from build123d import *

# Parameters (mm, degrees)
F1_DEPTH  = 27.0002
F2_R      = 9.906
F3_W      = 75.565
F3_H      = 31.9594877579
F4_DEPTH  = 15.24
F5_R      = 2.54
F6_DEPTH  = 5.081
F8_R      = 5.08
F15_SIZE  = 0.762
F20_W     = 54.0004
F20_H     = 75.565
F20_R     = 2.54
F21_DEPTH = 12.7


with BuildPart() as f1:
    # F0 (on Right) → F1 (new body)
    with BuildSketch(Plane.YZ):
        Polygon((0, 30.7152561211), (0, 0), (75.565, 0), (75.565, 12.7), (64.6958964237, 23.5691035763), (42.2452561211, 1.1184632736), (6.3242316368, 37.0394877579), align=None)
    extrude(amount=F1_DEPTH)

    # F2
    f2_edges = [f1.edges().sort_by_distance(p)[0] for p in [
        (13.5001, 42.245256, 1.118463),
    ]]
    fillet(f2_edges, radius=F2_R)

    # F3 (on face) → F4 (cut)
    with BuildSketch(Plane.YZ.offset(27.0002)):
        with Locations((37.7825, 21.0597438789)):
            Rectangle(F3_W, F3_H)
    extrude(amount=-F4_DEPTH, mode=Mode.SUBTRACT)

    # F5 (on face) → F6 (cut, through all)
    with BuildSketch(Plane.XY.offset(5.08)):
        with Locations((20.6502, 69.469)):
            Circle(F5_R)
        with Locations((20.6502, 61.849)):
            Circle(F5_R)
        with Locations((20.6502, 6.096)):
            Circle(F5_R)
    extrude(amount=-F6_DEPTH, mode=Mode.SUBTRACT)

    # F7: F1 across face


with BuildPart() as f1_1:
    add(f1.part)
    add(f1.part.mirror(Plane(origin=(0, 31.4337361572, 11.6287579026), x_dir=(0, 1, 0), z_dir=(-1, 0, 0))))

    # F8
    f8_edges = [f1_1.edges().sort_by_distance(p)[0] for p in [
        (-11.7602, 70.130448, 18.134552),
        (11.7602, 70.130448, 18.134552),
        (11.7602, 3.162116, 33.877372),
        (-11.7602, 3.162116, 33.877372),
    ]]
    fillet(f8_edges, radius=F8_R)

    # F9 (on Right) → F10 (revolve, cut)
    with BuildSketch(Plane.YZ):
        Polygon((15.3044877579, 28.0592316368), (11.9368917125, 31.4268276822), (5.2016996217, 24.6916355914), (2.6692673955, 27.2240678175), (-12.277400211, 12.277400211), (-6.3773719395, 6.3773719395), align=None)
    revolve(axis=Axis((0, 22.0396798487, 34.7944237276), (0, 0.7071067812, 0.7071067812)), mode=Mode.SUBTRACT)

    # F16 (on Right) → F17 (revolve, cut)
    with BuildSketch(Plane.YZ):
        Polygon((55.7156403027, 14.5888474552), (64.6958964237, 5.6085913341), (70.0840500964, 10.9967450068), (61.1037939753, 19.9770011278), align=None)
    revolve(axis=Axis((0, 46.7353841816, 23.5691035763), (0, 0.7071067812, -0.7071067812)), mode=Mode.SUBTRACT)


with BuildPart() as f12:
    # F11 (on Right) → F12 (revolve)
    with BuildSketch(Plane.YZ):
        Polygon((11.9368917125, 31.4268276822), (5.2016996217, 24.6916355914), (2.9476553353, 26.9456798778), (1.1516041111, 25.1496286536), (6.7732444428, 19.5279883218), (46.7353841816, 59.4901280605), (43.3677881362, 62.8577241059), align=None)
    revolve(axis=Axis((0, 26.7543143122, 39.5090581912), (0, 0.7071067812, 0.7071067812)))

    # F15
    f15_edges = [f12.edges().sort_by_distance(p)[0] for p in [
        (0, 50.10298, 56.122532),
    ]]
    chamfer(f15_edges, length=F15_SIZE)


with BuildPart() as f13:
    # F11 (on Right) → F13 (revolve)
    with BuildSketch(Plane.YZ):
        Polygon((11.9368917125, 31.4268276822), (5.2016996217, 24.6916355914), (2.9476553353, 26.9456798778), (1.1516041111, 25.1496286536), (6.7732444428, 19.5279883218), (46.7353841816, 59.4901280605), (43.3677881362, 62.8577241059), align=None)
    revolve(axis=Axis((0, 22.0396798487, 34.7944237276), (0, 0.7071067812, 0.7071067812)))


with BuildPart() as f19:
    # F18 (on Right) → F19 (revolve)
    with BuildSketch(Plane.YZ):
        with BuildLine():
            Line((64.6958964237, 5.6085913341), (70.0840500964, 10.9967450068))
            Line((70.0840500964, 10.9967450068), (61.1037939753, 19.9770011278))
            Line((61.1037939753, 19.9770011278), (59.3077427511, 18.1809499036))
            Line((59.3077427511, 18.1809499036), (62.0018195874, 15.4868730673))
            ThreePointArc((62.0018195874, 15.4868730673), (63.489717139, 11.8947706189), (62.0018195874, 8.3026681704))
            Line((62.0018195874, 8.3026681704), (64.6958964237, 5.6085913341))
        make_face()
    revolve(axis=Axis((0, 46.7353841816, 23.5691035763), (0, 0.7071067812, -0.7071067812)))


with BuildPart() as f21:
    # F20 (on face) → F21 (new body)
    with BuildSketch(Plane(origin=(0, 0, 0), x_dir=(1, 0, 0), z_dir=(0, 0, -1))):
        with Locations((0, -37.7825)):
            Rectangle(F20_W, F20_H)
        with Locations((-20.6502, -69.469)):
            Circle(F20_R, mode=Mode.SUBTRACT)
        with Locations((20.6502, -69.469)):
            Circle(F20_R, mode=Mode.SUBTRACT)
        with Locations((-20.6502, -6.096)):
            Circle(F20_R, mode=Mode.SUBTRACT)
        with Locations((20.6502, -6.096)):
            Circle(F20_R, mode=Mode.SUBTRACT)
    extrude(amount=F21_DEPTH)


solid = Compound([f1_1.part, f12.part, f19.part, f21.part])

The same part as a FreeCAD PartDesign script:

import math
import FreeCAD as App
import Part
import Sketcher
from FreeCAD import Vector
Q = App.Units.Quantity


def edges_at(feature, points):
    """Names of the edges that pass closest to the given points."""
    edges = feature.Shape.Edges
    near = lambda p: min(range(len(edges)), key=lambda i: edges[i].distToShape(Part.Vertex(*p))[0])
    return sorted({f"Edge{near(p) + 1}" for p in points})

doc = App.newDocument("Part")
body = doc.addObject("PartDesign::Body", "Body")

# Sketch on YZ plane
sketch1 = doc.addObject("Sketcher::SketchObject", "Sketch")
body.addObject(sketch1)
sketch1.AttachmentSupport = (doc.YZ_Plane, [""])
sketch1.MapMode = "FlatFace"
sketch1.addGeometry([
    Part.LineSegment(Vector(0, 31, 0), Vector(0, 0, 0)),  # 0
    Part.LineSegment(Vector(0, 0, 0), Vector(76, 0, 0)),  # 1
    Part.LineSegment(Vector(76, 0, 0), Vector(76, 13, 0)),  # 2
    Part.LineSegment(Vector(76, 13, 0), Vector(65, 24, 0)),  # 3
    Part.LineSegment(Vector(65, 24, 0), Vector(42, 1, 0)),  # 4
    Part.LineSegment(Vector(42, 1, 0), Vector(6, 37, 0)),  # 5
    Part.LineSegment(Vector(6, 37, 0), Vector(0, 31, 0)),  # 6
], False)
sketch1.addConstraint([
    Sketcher.Constraint("Coincident", 0, 2, 1, 1),
    Sketcher.Constraint("Coincident", 1, 2, 2, 1),
    Sketcher.Constraint("Coincident", 2, 2, 3, 1),
    Sketcher.Constraint("Coincident", 3, 2, 4, 1),
    Sketcher.Constraint("Coincident", 4, 2, 5, 1),
    Sketcher.Constraint("Coincident", 5, 2, 6, 1),
    Sketcher.Constraint("Coincident", 6, 2, 0, 1),
    Sketcher.Constraint("Vertical", 0),
    Sketcher.Constraint("Horizontal", 1),
    Sketcher.Constraint("Vertical", 2),
    Sketcher.Constraint("Coincident", 0, 2, -1, 1),
    Sketcher.Constraint("Perpendicular", 3, 4),
    Sketcher.Constraint("Perpendicular", 4, 5),
    Sketcher.Constraint("Perpendicular", 5, 6),
    Sketcher.Constraint("Distance", 5, Q("2 in")),
    Sketcher.Constraint("DistanceY", 2, 1, 2, 2, Q("0.5 in")),
    Sketcher.Constraint("Angle", 3, Q("135 deg")),
    Sketcher.Constraint("Distance", 4, Q("1.25 in")),
    Sketcher.Constraint("DistanceX", 1, 1, 1, 2, Q("2.975 in")),
    Sketcher.Constraint("DistanceY", 0, 2, 0, 1, 30.715256),
])
pad1 = doc.addObject("PartDesign::Pad", "Pad")
body.addObject(pad1)
pad1.Profile = sketch1
pad1.Length = Q("1.063 in")
doc.recompute()

fillet = doc.addObject("PartDesign::Fillet", "Fillet")
body.addObject(fillet)
fillet.Base = (pad1, edges_at(pad1, [(13.5, 42.245, 1.118)]))
fillet.Radius = Q("0.39 in")

# Sketch on YZ plane
sketch2 = doc.addObject("Sketcher::SketchObject", "Sketch001")
body.addObject(sketch2)
sketch2.AttachmentSupport = (doc.YZ_Plane, [""])
sketch2.MapMode = "FlatFace"
sketch2.AttachmentOffset = App.Placement(Vector(0, 0, 1.063 * 25.4), App.Rotation())
sketch2.addGeometry([
    Part.LineSegment(Vector(0, 37, 0), Vector(0, 5, 0)),
    Part.LineSegment(Vector(0, 5, 0), Vector(76, 5, 0)),
    Part.LineSegment(Vector(76, 5, 0), Vector(76, 37, 0)),
    Part.LineSegment(Vector(76, 37, 0), Vector(0, 37, 0)),
], False)
sketch2.addConstraint([
    Sketcher.Constraint("Coincident", 0, 2, 1, 1),
    Sketcher.Constraint("Coincident", 1, 2, 2, 1),
    Sketcher.Constraint("Coincident", 2, 2, 3, 1),
    Sketcher.Constraint("Coincident", 3, 2, 0, 1),
    Sketcher.Constraint("Vertical", 0),
    Sketcher.Constraint("Horizontal", 1),
    Sketcher.Constraint("Vertical", 2),
    Sketcher.Constraint("Horizontal", 3),
    Sketcher.Constraint("PointOnObject", 0, 2, -2),
    Sketcher.Constraint("DistanceY", -1, 1, 0, 2, Q("0.2 in")),
    Sketcher.Constraint("DistanceX", 1, 1, 1, 2, Q("2.975 in")),
    Sketcher.Constraint("DistanceY", 0, 2, 0, 1, 31.959488),
])
pocket1 = doc.addObject("PartDesign::Pocket", "Pocket")
body.addObject(pocket1)
pocket1.Profile = sketch2
pocket1.Length = Q("0.6 in")

# Sketch on XY plane
sketch3 = doc.addObject("Sketcher::SketchObject", "Sketch002")
body.addObject(sketch3)
sketch3.AttachmentSupport = (doc.XY_Plane, [""])
sketch3.MapMode = "FlatFace"
sketch3.AttachmentOffset = App.Placement(Vector(0, 0, 0.2 * 25.4), App.Rotation())
sketch3.addGeometry([
    Part.Circle(Vector(20.7, 69.5, 0), Vector(0, 0, 1), 2.5),
    Part.Circle(Vector(20.7, 61.8, 0), Vector(0, 0, 1), 2.5),
    Part.Circle(Vector(20.7, 6.1, 0), Vector(0, 0, 1), 2.5),
], False)
sketch3.addConstraint([
    Sketcher.Constraint("Equal", 0, 1),
    Sketcher.Constraint("Equal", 1, 2),
    Sketcher.Constraint("Vertical", 0, 3, 1, 3),
    Sketcher.Constraint("Vertical", 1, 3, 2, 3),
    Sketcher.Constraint("Diameter", 0, Q("0.2 in")),
    Sketcher.Constraint("DistanceY", 1, 3, 0, 3, Q("0.3 in")),
    Sketcher.Constraint("DistanceY", -1, 1, 2, 3, Q("0.24 in")),
    Sketcher.Constraint("DistanceX", -1, 1, 0, 3, Q("0.813 in")),
    Sketcher.Constraint("DistanceY", -1, 1, 0, 3, Q("2.735 in")),
])
pocket2 = doc.addObject("PartDesign::Pocket", "Pocket001")
body.addObject(pocket2)
pocket2.Profile = sketch3
pocket2.Type = "ThroughAll"
body2 = doc.addObject("PartDesign::Body", "Body001")
doc.recompute()

body2.BaseFeature = body
doc.recompute()

mirroring = doc.addObject("Part::Mirroring", "Mirroring")
mirroring.Source = body
mirroring.Base = Vector(0, 31.433736, 11.628758)
mirroring.Normal = Vector(-1, 0, 0)
body3 = doc.addObject("PartDesign::Body", "Body002")
body3.BaseFeature = mirroring
boolean = doc.addObject("PartDesign::Boolean", "Boolean")
body2.addObject(boolean)
boolean.Type = "Fuse"
boolean.addObjects([body3])
doc.recompute()

fillet2 = doc.addObject("PartDesign::Fillet", "Fillet001")
body2.addObject(fillet2)
fillet2.Base = (boolean, edges_at(boolean, [
    (-11.76, 70.13, 18.135),
    (11.76, 70.13, 18.135),
    (11.76, 3.162, 33.877),
    (-11.76, 3.162, 33.877),
]))
fillet2.Radius = Q("0.2 in")

# Sketch on YZ plane
sketch4 = doc.addObject("Sketcher::SketchObject", "Sketch003")
body2.addObject(sketch4)
sketch4.AttachmentSupport = (doc.getObject("YZ_Plane001"), [""])
sketch4.MapMode = "FlatFace"
sketch4.addGeometry([
    Part.LineSegment(Vector(15.3, 28.1, 0), Vector(11.9, 31.4, 0)),  # 0
    Part.LineSegment(Vector(11.9, 31.4, 0), Vector(5.2, 24.7, 0)),  # 1
    Part.LineSegment(Vector(5.2, 24.7, 0), Vector(2.7, 27.2, 0)),  # 2
    Part.LineSegment(Vector(2.7, 27.2, 0), Vector(-12.3, 12.3, 0)),  # 3
    Part.LineSegment(Vector(-12.3, 12.3, 0), Vector(-6.4, 6.4, 0)),  # 4
    Part.LineSegment(Vector(-6.4, 6.4, 0), Vector(15.3, 28.1, 0)),  # 5
], False)
sketch4.addGeometry(Part.LineSegment(Vector(-6.4, 6.4, 0), Vector(15.3, 28.1, 0)), True)  # axis
sketch4.addConstraint([
    Sketcher.Constraint("Coincident", 0, 2, 1, 1),
    Sketcher.Constraint("Coincident", 1, 2, 2, 1),
    Sketcher.Constraint("Coincident", 2, 2, 3, 1),
    Sketcher.Constraint("Coincident", 3, 2, 4, 1),
    Sketcher.Constraint("Coincident", 4, 2, 5, 1),
    Sketcher.Constraint("Coincident", 5, 2, 0, 1),
    Sketcher.Constraint("Coincident", 6, 1, 4, 2),
    Sketcher.Constraint("Coincident", 6, 2, 5, 2),
    Sketcher.Constraint("Perpendicular", 0, 1),
    Sketcher.Constraint("Perpendicular", 1, 2),
    Sketcher.Constraint("Perpendicular", 2, 3),
    Sketcher.Constraint("Perpendicular", 3, 4),
    Sketcher.Constraint("Perpendicular", 4, 5),
    Sketcher.Constraint("Angle", 0, Q("135 deg")),
    Sketcher.Constraint("Distance", 0, Q("0.1875 in")),
    Sketcher.Constraint("Distance", 1, Q("0.375 in")),
    Sketcher.Constraint("Distance", 2, Q("0.141 in")),
    Sketcher.Constraint("DistanceX", -1, 1, 1, 2, 5.2017),
    Sketcher.Constraint("DistanceX", 3, 2, -1, 1, 12.2774),
    Sketcher.Constraint("DistanceY", -1, 1, 3, 2, 12.2774),
])
groove = doc.addObject("PartDesign::Groove", "Groove")
body2.addObject(groove)
groove.Profile = sketch4
groove.ReferenceAxis = (sketch4, ["Axis0"])
groove.Angle = 360

# Sketch on YZ plane
sketch5 = doc.addObject("Sketcher::SketchObject", "Sketch004")
body2.addObject(sketch5)
sketch5.AttachmentSupport = (doc.getObject("YZ_Plane001"), [""])
sketch5.MapMode = "FlatFace"
sketch5.addGeometry([
    Part.LineSegment(Vector(56, 15, 0), Vector(65, 6, 0)),
    Part.LineSegment(Vector(65, 6, 0), Vector(70, 11, 0)),
    Part.LineSegment(Vector(70, 11, 0), Vector(61, 20, 0)),
    Part.LineSegment(Vector(61, 20, 0), Vector(56, 15, 0)),
], False)
sketch5.addGeometry(Part.LineSegment(Vector(56, 15, 0), Vector(65, 6, 0)), True)  # axis
sketch5.addConstraint([
    Sketcher.Constraint("Coincident", 0, 2, 1, 1),
    Sketcher.Constraint("Coincident", 1, 2, 2, 1),
    Sketcher.Constraint("Coincident", 2, 2, 3, 1),
    Sketcher.Constraint("Coincident", 3, 2, 0, 1),
    Sketcher.Constraint("Coincident", 4, 1, 3, 2),
    Sketcher.Constraint("Coincident", 4, 2, 0, 2),
    Sketcher.Constraint("Perpendicular", 0, 1),
    Sketcher.Constraint("Perpendicular", 1, 2),
    Sketcher.Constraint("Perpendicular", 2, 3),
    Sketcher.Constraint("Angle", 0, Q("-45 deg")),
    Sketcher.Constraint("Distance", 0, Q("0.5 in")),
    Sketcher.Constraint("Distance", 1, Q("0.3 in")),
    Sketcher.Constraint("DistanceY", -1, 1, 2, 2, 19.977001),
    Sketcher.Constraint("DistanceX", -1, 1, 1, 2, 70.08405),
])
groove2 = doc.addObject("PartDesign::Groove", "Groove001")
body2.addObject(groove2)
groove2.Profile = sketch5
groove2.ReferenceAxis = (sketch5, ["Axis0"])
groove2.Angle = 360
body4 = doc.addObject("PartDesign::Body", "Body003")

# Sketch on YZ plane
sketch6 = doc.addObject("Sketcher::SketchObject", "Sketch005")
body4.addObject(sketch6)
sketch6.AttachmentSupport = (doc.getObject("YZ_Plane003"), [""])
sketch6.MapMode = "FlatFace"
sketch6.addGeometry([
    Part.LineSegment(Vector(5.2, 24.7, 0), Vector(2.9, 26.9, 0)),  # 0
    Part.LineSegment(Vector(2.9, 26.9, 0), Vector(1.2, 25.1, 0)),  # 1
    Part.LineSegment(Vector(1.2, 25.1, 0), Vector(6.8, 19.5, 0)),  # 2
    Part.LineSegment(Vector(6.8, 19.5, 0), Vector(46.7, 59.5, 0)),  # 3
    Part.LineSegment(Vector(46.7, 59.5, 0), Vector(43.4, 62.9, 0)),  # 4
    Part.LineSegment(Vector(43.4, 62.9, 0), Vector(5.2, 24.7, 0)),  # 5
], False)
sketch6.addGeometry(Part.LineSegment(Vector(6.8, 19.5, 0), Vector(46.7, 59.5, 0)), True)  # axis
sketch6.addConstraint([
    Sketcher.Constraint("Coincident", 0, 2, 1, 1),
    Sketcher.Constraint("Coincident", 1, 2, 2, 1),
    Sketcher.Constraint("Coincident", 2, 2, 3, 1),
    Sketcher.Constraint("Coincident", 3, 2, 4, 1),
    Sketcher.Constraint("Coincident", 4, 2, 5, 1),
    Sketcher.Constraint("Coincident", 5, 2, 0, 1),
    Sketcher.Constraint("Coincident", 6, 1, 2, 2),
    Sketcher.Constraint("Coincident", 6, 2, 3, 2),
    Sketcher.Constraint("Perpendicular", 0, 1),
    Sketcher.Constraint("Perpendicular", 1, 2),
    Sketcher.Constraint("Perpendicular", 2, 3),
    Sketcher.Constraint("Perpendicular", 3, 4),
    Sketcher.Constraint("Perpendicular", 4, 5),
    Sketcher.Constraint("Angle", 0, Q("135 deg")),
    Sketcher.Constraint("Distance", 1, Q("0.1 in")),
    Sketcher.Constraint("Distance", 2, Q("0.313 in")),
    Sketcher.Constraint("Distance", 3, Q("2.225 in")),
    Sketcher.Constraint("Distance", 4, Q("0.1875 in")),
    Sketcher.Constraint("DistanceX", -1, 1, 5, 2, 5.2017),
    Sketcher.Constraint("DistanceY", -1, 1, 0, 2, 26.94568),
])
revolution = doc.addObject("PartDesign::Revolution", "Revolution")
body4.addObject(revolution)
revolution.Profile = sketch6
revolution.ReferenceAxis = (sketch6, ["Axis0"])
revolution.Angle = 360
doc.recompute()

chamfer = doc.addObject("PartDesign::Chamfer", "Chamfer")
body4.addObject(chamfer)
chamfer.Base = (revolution, edges_at(revolution, [(0, 50.103, 56.123)]))
chamfer.Size = Q("0.03 in")
body5 = doc.addObject("PartDesign::Body", "Body004")

# Sketch on YZ plane
sketch7 = doc.addObject("Sketcher::SketchObject", "Sketch006")
body5.addObject(sketch7)
sketch7.AttachmentSupport = (doc.getObject("YZ_Plane004"), [""])
sketch7.MapMode = "FlatFace"
sketch7.addGeometry([
    Part.LineSegment(Vector(5.2, 24.7, 0), Vector(2.9, 26.9, 0)),  # 0
    Part.LineSegment(Vector(2.9, 26.9, 0), Vector(1.2, 25.1, 0)),  # 1
    Part.LineSegment(Vector(1.2, 25.1, 0), Vector(6.8, 19.5, 0)),  # 2
    Part.LineSegment(Vector(6.8, 19.5, 0), Vector(46.7, 59.5, 0)),  # 3
    Part.LineSegment(Vector(46.7, 59.5, 0), Vector(43.4, 62.9, 0)),  # 4
    Part.LineSegment(Vector(43.4, 62.9, 0), Vector(5.2, 24.7, 0)),  # 5
], False)
sketch7.addGeometry(Part.LineSegment(Vector(6.8, 19.5, 0), Vector(46.7, 59.5, 0)), True)  # axis
sketch7.addConstraint([
    Sketcher.Constraint("Coincident", 0, 2, 1, 1),
    Sketcher.Constraint("Coincident", 1, 2, 2, 1),
    Sketcher.Constraint("Coincident", 2, 2, 3, 1),
    Sketcher.Constraint("Coincident", 3, 2, 4, 1),
    Sketcher.Constraint("Coincident", 4, 2, 5, 1),
    Sketcher.Constraint("Coincident", 5, 2, 0, 1),
    Sketcher.Constraint("Coincident", 6, 1, 2, 2),
    Sketcher.Constraint("Coincident", 6, 2, 3, 2),
    Sketcher.Constraint("Perpendicular", 0, 1),
    Sketcher.Constraint("Perpendicular", 1, 2),
    Sketcher.Constraint("Perpendicular", 2, 3),
    Sketcher.Constraint("Perpendicular", 3, 4),
    Sketcher.Constraint("Perpendicular", 4, 5),
    Sketcher.Constraint("Angle", 0, Q("135 deg")),
    Sketcher.Constraint("Distance", 1, Q("0.1 in")),
    Sketcher.Constraint("Distance", 2, Q("0.313 in")),
    Sketcher.Constraint("Distance", 3, Q("2.225 in")),
    Sketcher.Constraint("Distance", 4, Q("0.1875 in")),
    Sketcher.Constraint("DistanceX", -1, 1, 5, 2, 5.2017),
    Sketcher.Constraint("DistanceY", -1, 1, 0, 2, 26.94568),
])
revolution2 = doc.addObject("PartDesign::Revolution", "Revolution001")
body5.addObject(revolution2)
revolution2.Profile = sketch7
revolution2.ReferenceAxis = (sketch7, ["Axis0"])
revolution2.Angle = 360
body6 = doc.addObject("PartDesign::Body", "Body005")

# Sketch on YZ plane
sketch8 = doc.addObject("Sketcher::SketchObject", "Sketch007")
body6.addObject(sketch8)
sketch8.AttachmentSupport = (doc.getObject("YZ_Plane005"), [""])
sketch8.MapMode = "FlatFace"
sketch8.addGeometry([
    Part.LineSegment(Vector(64.7, 5.6, 0), Vector(70.1, 11, 0)),  # 0
    Part.LineSegment(Vector(70.1, 11, 0), Vector(61.1, 20, 0)),  # 1
    Part.LineSegment(Vector(61.1, 20, 0), Vector(59.3, 18.2, 0)),  # 2
    Part.LineSegment(Vector(59.3, 18.2, 0), Vector(62, 15.5, 0)),  # 3
    Part.ArcOfCircle(Part.Circle(Vector(58.4, 11.9, 0), Vector(0, 0, 1), 5.1), math.radians(-45), math.radians(45)),  # 4
    Part.LineSegment(Vector(62, 8.3, 0), Vector(64.7, 5.6, 0)),  # 5
], False)
sketch8.addGeometry(Part.LineSegment(Vector(55.7, 14.6, 0), Vector(64.7, 5.6, 0)), True)  # axis
sketch8.addConstraint([
    Sketcher.Constraint("Coincident", 0, 2, 1, 1),
    Sketcher.Constraint("Coincident", 1, 2, 2, 1),
    Sketcher.Constraint("Coincident", 2, 2, 3, 1),
    Sketcher.Constraint("Tangent", 3, 2, 4, 2),
    Sketcher.Constraint("Coincident", 4, 1, 5, 1),
    Sketcher.Constraint("Coincident", 5, 2, 0, 1),
    Sketcher.Constraint("Coincident", 6, 2, 5, 2),
    Sketcher.Constraint("Perpendicular", 0, 1),
    Sketcher.Constraint("Perpendicular", 1, 2),
    Sketcher.Constraint("Perpendicular", 2, 3),
    Sketcher.Constraint("Parallel", 3, 5),
    Sketcher.Constraint("Parallel", 5, 6),
    Sketcher.Constraint("Vertical", 3, 2, 4, 1),
    Sketcher.Constraint("Equal", 3, 5),
    Sketcher.Constraint("Equal", 1, 6),
    Sketcher.Constraint("Radius", 4, Q("0.2 in")),
    Sketcher.Constraint("Angle", 0, Q("45 deg")),
    Sketcher.Constraint("Distance", 0, Q("0.3 in")),
    Sketcher.Constraint("Distance", 1, Q("0.5 in")),
    Sketcher.Constraint("DistanceY", -1, 1, 1, 2, 19.977001),
    Sketcher.Constraint("DistanceX", -1, 1, 0, 2, 70.08405),
])
revolution3 = doc.addObject("PartDesign::Revolution", "Revolution002")
body6.addObject(revolution3)
revolution3.Profile = sketch8
revolution3.ReferenceAxis = (sketch8, ["Axis0"])
revolution3.Angle = 360
body7 = doc.addObject("PartDesign::Body", "Body006")

# Sketch on XY plane
sketch9 = doc.addObject("Sketcher::SketchObject", "Sketch008")
body7.addObject(sketch9)
sketch9.AttachmentSupport = (doc.getObject("XY_Plane006"), [""])
sketch9.MapMode = "FlatFace"
sketch9.addGeometry([
    Part.LineSegment(Vector(-27, 0, 0), Vector(-27, 75.6, 0)),  # 0
    Part.LineSegment(Vector(-27, 75.6, 0), Vector(27, 75.6, 0)),  # 1
    Part.LineSegment(Vector(27, 75.6, 0), Vector(27, 0, 0)),  # 2
    Part.LineSegment(Vector(27, 0, 0), Vector(-27, 0, 0)),  # 3
    Part.Circle(Vector(-20.7, 69.5, 0), Vector(0, 0, 1), 2.5),  # 4
    Part.Circle(Vector(20.7, 69.5, 0), Vector(0, 0, 1), 2.5),  # 5
    Part.Circle(Vector(-20.7, 6.1, 0), Vector(0, 0, 1), 2.5),  # 6
    Part.Circle(Vector(20.7, 6.1, 0), Vector(0, 0, 1), 2.5),  # 7
], False)
sketch9.addConstraint([
    Sketcher.Constraint("Coincident", 0, 2, 1, 1),
    Sketcher.Constraint("Coincident", 1, 2, 2, 1),
    Sketcher.Constraint("Coincident", 2, 2, 3, 1),
    Sketcher.Constraint("Coincident", 3, 2, 0, 1),
    Sketcher.Constraint("Vertical", 0),
    Sketcher.Constraint("Horizontal", 1),
    Sketcher.Constraint("Vertical", 2),
    Sketcher.Constraint("Horizontal", 3),
    Sketcher.Constraint("Equal", 4, 5),
    Sketcher.Constraint("Equal", 5, 6),
    Sketcher.Constraint("Equal", 6, 7),
    Sketcher.Constraint("Symmetric", 2, 2, 3, 2, -1, 1),
    Sketcher.Constraint("Symmetric", 4, 3, 5, 3, -2),
    Sketcher.Constraint("Symmetric", 6, 3, 7, 3, -2),
    Sketcher.Constraint("Vertical", 4, 3, 6, 3),
    Sketcher.Constraint("Diameter", 4, Q("0.2 in")),
    Sketcher.Constraint("DistanceX", 1, 1, 1, 2, Q("2.126 in")),
    Sketcher.Constraint("DistanceY", 0, 1, 0, 2, Q("2.975 in")),
    Sketcher.Constraint("DistanceY", -1, 1, 6, 3, Q("0.24 in")),
    Sketcher.Constraint("DistanceX", 0, 2, 4, 3, Q("0.25 in")),
    Sketcher.Constraint("DistanceY", 4, 3, 0, 2, Q("0.24 in")),
])
pad2 = doc.addObject("PartDesign::Pad", "Pad001")
body7.addObject(pad2)
pad2.Profile = sketch9
pad2.Length = Q("0.5 in")
pad2.Reversed = True
body5.Visibility = False
mirroring.Visibility = False

doc.recompute()
